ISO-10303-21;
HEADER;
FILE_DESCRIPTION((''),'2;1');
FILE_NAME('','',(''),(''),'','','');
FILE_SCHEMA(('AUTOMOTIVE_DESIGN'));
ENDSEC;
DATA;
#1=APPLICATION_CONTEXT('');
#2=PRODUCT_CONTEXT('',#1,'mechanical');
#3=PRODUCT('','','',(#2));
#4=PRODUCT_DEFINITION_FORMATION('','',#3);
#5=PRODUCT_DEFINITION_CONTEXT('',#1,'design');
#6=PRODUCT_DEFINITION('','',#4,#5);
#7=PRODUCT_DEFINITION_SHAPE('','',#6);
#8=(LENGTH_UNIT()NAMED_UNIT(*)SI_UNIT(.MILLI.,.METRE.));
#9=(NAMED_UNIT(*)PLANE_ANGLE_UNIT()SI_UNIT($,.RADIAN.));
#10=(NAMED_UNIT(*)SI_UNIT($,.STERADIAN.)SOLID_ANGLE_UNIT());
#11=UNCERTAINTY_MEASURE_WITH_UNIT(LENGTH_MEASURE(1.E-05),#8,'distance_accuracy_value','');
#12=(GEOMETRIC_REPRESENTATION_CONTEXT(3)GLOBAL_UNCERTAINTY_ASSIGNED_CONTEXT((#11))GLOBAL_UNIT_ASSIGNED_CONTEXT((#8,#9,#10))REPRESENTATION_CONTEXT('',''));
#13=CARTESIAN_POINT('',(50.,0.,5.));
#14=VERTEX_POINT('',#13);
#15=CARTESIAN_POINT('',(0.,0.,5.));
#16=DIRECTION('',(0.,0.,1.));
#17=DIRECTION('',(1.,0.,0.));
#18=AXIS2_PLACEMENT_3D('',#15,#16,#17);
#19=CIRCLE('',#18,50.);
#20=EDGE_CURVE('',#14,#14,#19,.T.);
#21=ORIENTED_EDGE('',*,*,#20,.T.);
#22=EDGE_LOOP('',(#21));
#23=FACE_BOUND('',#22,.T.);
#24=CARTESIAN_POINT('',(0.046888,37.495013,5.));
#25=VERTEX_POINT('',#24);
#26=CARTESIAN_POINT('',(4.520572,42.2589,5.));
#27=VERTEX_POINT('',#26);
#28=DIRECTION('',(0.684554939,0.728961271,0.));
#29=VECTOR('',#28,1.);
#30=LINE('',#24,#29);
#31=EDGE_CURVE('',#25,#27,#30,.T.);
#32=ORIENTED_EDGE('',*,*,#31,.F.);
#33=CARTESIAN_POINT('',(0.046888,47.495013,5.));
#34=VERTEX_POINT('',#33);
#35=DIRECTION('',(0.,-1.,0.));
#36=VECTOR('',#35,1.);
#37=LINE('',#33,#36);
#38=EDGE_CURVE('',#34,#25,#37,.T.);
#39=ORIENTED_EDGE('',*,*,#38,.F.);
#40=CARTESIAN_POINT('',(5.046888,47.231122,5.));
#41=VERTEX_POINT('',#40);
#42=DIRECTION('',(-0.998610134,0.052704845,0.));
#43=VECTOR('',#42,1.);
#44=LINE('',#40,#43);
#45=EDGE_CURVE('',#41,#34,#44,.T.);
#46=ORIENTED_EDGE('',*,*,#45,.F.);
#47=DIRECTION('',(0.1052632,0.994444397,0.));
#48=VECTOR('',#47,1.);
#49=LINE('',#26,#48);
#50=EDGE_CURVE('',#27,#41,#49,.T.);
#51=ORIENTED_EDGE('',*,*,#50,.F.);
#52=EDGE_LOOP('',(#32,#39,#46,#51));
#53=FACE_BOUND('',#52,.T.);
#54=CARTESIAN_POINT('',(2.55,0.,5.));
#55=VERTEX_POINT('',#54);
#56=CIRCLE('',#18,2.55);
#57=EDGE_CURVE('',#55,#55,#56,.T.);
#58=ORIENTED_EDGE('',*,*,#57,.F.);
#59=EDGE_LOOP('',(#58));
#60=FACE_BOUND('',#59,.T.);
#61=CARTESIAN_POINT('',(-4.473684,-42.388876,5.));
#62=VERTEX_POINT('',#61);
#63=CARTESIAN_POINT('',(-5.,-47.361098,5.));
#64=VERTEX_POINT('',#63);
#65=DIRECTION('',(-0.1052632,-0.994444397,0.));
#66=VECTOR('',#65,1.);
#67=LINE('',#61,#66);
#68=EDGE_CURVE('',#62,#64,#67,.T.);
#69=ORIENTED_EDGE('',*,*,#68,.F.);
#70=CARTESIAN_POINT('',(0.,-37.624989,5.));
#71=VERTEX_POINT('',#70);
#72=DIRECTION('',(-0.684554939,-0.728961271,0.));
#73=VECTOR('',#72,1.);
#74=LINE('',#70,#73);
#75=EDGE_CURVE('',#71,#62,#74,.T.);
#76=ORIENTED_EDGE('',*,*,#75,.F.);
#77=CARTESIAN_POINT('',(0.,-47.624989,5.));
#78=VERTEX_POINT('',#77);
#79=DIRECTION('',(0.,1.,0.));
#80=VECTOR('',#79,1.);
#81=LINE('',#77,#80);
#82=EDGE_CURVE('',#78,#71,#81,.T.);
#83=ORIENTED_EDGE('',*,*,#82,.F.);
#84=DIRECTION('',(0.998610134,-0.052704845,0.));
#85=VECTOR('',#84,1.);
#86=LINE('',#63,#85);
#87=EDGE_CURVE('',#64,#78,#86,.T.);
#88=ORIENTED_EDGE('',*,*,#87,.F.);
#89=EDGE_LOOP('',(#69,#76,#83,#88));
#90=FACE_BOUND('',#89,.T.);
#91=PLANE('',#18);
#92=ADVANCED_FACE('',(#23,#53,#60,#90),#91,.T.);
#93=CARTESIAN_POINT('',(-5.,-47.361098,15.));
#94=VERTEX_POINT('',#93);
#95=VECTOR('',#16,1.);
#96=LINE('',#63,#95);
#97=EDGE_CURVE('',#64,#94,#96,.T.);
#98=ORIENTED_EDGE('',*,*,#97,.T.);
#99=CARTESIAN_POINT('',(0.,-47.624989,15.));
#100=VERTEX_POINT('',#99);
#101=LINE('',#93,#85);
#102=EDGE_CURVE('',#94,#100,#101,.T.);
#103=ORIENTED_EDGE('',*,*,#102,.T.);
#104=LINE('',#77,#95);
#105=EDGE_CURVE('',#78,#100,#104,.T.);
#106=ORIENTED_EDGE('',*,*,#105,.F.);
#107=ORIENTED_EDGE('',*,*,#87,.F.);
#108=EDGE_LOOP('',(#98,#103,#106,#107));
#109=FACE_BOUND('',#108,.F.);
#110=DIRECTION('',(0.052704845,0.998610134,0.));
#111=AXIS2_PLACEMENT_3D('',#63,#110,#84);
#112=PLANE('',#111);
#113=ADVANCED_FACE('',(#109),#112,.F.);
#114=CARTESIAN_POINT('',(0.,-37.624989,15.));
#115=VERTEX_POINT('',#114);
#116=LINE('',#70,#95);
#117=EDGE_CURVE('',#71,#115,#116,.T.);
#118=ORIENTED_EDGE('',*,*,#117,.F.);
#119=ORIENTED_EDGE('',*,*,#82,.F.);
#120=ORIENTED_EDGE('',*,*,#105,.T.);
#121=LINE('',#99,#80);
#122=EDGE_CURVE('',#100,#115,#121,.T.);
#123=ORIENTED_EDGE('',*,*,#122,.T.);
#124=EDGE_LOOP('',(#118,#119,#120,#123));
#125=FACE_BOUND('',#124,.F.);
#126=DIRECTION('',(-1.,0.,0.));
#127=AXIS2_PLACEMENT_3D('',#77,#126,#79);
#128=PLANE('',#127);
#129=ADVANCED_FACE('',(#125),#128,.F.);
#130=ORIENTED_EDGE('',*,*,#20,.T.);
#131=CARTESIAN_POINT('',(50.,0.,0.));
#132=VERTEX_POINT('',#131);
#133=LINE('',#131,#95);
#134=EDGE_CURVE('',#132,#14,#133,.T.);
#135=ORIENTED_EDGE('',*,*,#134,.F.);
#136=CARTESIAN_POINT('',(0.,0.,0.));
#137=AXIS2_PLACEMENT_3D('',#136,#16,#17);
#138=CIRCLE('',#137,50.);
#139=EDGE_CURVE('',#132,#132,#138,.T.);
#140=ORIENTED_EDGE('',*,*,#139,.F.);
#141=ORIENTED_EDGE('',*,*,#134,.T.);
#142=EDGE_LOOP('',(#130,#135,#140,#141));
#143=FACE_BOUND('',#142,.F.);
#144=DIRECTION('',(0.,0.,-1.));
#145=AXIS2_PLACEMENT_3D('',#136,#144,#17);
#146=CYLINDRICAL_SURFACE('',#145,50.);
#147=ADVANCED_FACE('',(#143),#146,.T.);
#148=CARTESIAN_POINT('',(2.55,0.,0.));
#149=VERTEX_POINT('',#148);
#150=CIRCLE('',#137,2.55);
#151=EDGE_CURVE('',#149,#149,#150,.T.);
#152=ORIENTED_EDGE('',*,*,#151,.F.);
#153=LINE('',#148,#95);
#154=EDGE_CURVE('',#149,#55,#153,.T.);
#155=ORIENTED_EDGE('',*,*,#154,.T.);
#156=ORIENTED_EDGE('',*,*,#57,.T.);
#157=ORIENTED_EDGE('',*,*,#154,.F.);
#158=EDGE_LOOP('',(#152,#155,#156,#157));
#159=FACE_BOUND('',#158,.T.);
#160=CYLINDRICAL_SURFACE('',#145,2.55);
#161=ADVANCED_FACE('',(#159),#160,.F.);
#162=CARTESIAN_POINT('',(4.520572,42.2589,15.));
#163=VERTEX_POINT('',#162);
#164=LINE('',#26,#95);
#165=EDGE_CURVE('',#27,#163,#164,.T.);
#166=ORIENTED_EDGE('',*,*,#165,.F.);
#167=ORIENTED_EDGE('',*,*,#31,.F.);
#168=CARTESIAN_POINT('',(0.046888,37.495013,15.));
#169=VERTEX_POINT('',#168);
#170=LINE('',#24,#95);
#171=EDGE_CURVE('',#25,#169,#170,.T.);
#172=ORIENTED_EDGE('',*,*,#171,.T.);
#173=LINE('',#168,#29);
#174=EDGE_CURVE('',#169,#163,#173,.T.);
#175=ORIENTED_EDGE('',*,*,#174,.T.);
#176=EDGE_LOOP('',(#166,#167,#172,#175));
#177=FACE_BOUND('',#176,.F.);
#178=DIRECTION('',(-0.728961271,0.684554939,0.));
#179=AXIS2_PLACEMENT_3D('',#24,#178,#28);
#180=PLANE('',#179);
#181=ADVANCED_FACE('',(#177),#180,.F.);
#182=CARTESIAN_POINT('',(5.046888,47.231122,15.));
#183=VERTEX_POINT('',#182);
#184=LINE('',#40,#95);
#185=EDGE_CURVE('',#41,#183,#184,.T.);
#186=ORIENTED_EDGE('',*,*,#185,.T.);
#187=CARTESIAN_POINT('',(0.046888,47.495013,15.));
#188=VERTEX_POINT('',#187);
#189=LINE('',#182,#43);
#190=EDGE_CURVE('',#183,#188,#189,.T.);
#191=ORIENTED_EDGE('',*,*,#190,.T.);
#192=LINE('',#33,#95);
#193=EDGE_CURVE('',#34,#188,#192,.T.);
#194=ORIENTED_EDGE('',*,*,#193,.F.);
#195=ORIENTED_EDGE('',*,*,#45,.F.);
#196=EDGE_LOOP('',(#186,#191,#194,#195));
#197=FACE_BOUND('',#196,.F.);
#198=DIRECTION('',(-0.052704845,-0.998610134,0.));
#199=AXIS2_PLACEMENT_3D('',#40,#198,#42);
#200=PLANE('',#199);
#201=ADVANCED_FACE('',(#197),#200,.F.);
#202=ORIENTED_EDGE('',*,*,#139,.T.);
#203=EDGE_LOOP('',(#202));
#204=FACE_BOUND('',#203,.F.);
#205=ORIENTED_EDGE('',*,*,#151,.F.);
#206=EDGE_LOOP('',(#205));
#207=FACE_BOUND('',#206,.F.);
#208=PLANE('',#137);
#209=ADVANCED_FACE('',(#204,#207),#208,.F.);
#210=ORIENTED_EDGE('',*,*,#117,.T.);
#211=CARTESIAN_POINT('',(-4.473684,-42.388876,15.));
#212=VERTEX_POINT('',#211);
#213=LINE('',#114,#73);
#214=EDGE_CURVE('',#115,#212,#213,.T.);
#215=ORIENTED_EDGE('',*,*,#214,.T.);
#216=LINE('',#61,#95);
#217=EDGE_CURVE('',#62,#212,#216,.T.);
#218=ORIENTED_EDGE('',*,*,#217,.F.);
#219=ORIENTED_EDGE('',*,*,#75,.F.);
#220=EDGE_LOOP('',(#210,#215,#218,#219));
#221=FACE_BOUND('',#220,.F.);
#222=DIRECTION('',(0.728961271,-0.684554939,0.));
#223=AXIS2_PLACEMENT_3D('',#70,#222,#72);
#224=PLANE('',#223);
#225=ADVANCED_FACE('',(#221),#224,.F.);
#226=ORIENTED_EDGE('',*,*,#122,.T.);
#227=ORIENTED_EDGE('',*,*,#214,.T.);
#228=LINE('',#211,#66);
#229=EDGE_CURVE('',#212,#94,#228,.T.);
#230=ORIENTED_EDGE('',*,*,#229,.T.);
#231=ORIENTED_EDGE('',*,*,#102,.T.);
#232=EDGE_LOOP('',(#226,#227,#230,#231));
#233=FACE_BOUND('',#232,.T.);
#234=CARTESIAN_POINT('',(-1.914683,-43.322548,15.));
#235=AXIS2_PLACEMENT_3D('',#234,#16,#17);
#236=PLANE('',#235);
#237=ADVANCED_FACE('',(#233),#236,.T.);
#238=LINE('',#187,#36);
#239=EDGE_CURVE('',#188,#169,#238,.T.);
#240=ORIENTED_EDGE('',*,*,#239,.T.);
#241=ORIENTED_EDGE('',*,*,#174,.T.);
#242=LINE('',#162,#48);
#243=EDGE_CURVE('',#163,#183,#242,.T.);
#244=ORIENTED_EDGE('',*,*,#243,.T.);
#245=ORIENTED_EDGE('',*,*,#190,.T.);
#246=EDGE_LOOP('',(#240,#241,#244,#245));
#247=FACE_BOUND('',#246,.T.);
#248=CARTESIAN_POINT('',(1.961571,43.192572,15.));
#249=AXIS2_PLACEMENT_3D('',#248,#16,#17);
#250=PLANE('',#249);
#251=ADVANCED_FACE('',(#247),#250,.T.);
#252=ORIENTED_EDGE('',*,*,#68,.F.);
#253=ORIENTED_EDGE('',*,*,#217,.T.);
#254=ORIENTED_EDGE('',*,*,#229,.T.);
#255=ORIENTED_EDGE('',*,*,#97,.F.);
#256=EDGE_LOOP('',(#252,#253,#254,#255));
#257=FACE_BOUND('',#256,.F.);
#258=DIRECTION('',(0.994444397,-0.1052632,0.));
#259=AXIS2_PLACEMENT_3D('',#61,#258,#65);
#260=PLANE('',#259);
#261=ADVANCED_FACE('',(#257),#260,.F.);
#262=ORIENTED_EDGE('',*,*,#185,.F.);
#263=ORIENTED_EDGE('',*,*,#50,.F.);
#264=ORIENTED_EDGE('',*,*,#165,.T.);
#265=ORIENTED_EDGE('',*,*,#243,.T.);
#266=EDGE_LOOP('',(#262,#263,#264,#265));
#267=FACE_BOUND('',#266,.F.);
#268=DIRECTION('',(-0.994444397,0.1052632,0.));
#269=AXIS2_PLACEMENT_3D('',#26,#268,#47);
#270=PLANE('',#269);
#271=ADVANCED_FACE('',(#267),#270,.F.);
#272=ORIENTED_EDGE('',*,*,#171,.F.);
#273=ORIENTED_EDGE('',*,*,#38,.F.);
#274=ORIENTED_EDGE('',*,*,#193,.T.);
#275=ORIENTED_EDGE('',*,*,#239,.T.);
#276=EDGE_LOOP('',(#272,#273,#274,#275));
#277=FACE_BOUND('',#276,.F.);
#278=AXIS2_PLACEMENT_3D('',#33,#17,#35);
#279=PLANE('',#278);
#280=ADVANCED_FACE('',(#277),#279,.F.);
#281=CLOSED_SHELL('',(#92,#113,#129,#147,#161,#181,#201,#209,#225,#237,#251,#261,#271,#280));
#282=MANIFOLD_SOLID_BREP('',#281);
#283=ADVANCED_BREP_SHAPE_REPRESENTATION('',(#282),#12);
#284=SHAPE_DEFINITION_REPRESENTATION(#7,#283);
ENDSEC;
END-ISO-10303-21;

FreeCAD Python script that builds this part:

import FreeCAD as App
import Part
import Sketcher

V = App.Vector


def add_polygon(sketch, points):
    """Adds a closed chain of lines whose ends are joined by coincident constraints."""
    first, n = sketch.GeometryCount, len(points)
    for a, b in zip(points, points[1:] + points[:1]):
        sketch.addGeometry(Part.LineSegment(App.Vector(*a, 0), App.Vector(*b, 0)), False)
    for i in range(n):
        sketch.addConstraint(Sketcher.Constraint("Coincident", first + i, 2, first + (i + 1) % n, 1))

doc = App.newDocument("Part")
body = doc.addObject("PartDesign::Body", "Body")

# Sketch on XY plane
sketch1 = doc.addObject("Sketcher::SketchObject", "Sketch")
body.addObject(sketch1)
sketch1.AttachmentSupport = (doc.XY_Plane, [""])
sketch1.MapMode = "FlatFace"
sketch1.addGeometry([
    Part.Circle(V(0, 0, 0), V(0, 0, 1), 50),
    Part.Circle(V(0, 0, 0), V(0, 0, 1), 2.5),
], False)
sketch1.addConstraint([
    Sketcher.Constraint("Coincident", 0, 3, -1, 1),
    Sketcher.Constraint("Coincident", 1, 3, -1, 1),
    Sketcher.Constraint("Diameter", 0, 100.0),
    Sketcher.Constraint("Diameter", 1, 5.1),
])
pad1 = doc.addObject("PartDesign::Pad", "Pad")
body.addObject(pad1)
pad1.Profile = sketch1
pad1.Length = 5

# Sketch on XY plane
sketch2 = doc.addObject("Sketcher::SketchObject", "Sketch001")
body.addObject(sketch2)
sketch2.AttachmentSupport = (doc.XY_Plane, [""])
sketch2.MapMode = "FlatFace"
sketch2.AttachmentOffset = App.Placement(V(0, 0, 5), App.Rotation())
add_polygon(sketch2, [(5, 47), (0, 47), (0, 37), (5, 42)])  # lines 0-3
add_polygon(sketch2, [(-5, -47), (0, -48), (0, -38), (-4, -42)])  # lines 4-7
sketch2.addConstraint([
    Sketcher.Constraint("Vertical", 1),
    Sketcher.Constraint("Vertical", 5),
    Sketcher.Constraint("PointOnObject", 4, 2, -2),
    Sketcher.Constraint("Parallel", 0, 4),
    Sketcher.Constraint("Parallel", 2, 6),
    Sketcher.Constraint("Parallel", 3, 7),
    Sketcher.Constraint("Equal", 1, 5),
    Sketcher.Constraint("Equal", 0, 4),
    Sketcher.Constraint("DistanceY", 1, 2, 1, 1, 10.0),
    Sketcher.Constraint("Distance", 3, 5.0),
    Sketcher.Constraint("DistanceX", 7, 2, -1, 1, 5.0),
    Sketcher.Constraint("DistanceY", 4, 2, 1, 2, 85.120002),
    Sketcher.Constraint("DistanceY", -1, 1, 2, 2, 42.2589),
    Sketcher.Constraint("Distance", 0, 5.006959),
    Sketcher.Constraint("Distance", 2, 6.535172),
    Sketcher.Constraint("DistanceX", -1, 1, 2, 2, 4.520572),
])
pad2 = doc.addObject("PartDesign::Pad", "Pad001")
body.addObject(pad2)
pad2.Profile = sketch2
pad2.Length = 10

doc.recompute()
